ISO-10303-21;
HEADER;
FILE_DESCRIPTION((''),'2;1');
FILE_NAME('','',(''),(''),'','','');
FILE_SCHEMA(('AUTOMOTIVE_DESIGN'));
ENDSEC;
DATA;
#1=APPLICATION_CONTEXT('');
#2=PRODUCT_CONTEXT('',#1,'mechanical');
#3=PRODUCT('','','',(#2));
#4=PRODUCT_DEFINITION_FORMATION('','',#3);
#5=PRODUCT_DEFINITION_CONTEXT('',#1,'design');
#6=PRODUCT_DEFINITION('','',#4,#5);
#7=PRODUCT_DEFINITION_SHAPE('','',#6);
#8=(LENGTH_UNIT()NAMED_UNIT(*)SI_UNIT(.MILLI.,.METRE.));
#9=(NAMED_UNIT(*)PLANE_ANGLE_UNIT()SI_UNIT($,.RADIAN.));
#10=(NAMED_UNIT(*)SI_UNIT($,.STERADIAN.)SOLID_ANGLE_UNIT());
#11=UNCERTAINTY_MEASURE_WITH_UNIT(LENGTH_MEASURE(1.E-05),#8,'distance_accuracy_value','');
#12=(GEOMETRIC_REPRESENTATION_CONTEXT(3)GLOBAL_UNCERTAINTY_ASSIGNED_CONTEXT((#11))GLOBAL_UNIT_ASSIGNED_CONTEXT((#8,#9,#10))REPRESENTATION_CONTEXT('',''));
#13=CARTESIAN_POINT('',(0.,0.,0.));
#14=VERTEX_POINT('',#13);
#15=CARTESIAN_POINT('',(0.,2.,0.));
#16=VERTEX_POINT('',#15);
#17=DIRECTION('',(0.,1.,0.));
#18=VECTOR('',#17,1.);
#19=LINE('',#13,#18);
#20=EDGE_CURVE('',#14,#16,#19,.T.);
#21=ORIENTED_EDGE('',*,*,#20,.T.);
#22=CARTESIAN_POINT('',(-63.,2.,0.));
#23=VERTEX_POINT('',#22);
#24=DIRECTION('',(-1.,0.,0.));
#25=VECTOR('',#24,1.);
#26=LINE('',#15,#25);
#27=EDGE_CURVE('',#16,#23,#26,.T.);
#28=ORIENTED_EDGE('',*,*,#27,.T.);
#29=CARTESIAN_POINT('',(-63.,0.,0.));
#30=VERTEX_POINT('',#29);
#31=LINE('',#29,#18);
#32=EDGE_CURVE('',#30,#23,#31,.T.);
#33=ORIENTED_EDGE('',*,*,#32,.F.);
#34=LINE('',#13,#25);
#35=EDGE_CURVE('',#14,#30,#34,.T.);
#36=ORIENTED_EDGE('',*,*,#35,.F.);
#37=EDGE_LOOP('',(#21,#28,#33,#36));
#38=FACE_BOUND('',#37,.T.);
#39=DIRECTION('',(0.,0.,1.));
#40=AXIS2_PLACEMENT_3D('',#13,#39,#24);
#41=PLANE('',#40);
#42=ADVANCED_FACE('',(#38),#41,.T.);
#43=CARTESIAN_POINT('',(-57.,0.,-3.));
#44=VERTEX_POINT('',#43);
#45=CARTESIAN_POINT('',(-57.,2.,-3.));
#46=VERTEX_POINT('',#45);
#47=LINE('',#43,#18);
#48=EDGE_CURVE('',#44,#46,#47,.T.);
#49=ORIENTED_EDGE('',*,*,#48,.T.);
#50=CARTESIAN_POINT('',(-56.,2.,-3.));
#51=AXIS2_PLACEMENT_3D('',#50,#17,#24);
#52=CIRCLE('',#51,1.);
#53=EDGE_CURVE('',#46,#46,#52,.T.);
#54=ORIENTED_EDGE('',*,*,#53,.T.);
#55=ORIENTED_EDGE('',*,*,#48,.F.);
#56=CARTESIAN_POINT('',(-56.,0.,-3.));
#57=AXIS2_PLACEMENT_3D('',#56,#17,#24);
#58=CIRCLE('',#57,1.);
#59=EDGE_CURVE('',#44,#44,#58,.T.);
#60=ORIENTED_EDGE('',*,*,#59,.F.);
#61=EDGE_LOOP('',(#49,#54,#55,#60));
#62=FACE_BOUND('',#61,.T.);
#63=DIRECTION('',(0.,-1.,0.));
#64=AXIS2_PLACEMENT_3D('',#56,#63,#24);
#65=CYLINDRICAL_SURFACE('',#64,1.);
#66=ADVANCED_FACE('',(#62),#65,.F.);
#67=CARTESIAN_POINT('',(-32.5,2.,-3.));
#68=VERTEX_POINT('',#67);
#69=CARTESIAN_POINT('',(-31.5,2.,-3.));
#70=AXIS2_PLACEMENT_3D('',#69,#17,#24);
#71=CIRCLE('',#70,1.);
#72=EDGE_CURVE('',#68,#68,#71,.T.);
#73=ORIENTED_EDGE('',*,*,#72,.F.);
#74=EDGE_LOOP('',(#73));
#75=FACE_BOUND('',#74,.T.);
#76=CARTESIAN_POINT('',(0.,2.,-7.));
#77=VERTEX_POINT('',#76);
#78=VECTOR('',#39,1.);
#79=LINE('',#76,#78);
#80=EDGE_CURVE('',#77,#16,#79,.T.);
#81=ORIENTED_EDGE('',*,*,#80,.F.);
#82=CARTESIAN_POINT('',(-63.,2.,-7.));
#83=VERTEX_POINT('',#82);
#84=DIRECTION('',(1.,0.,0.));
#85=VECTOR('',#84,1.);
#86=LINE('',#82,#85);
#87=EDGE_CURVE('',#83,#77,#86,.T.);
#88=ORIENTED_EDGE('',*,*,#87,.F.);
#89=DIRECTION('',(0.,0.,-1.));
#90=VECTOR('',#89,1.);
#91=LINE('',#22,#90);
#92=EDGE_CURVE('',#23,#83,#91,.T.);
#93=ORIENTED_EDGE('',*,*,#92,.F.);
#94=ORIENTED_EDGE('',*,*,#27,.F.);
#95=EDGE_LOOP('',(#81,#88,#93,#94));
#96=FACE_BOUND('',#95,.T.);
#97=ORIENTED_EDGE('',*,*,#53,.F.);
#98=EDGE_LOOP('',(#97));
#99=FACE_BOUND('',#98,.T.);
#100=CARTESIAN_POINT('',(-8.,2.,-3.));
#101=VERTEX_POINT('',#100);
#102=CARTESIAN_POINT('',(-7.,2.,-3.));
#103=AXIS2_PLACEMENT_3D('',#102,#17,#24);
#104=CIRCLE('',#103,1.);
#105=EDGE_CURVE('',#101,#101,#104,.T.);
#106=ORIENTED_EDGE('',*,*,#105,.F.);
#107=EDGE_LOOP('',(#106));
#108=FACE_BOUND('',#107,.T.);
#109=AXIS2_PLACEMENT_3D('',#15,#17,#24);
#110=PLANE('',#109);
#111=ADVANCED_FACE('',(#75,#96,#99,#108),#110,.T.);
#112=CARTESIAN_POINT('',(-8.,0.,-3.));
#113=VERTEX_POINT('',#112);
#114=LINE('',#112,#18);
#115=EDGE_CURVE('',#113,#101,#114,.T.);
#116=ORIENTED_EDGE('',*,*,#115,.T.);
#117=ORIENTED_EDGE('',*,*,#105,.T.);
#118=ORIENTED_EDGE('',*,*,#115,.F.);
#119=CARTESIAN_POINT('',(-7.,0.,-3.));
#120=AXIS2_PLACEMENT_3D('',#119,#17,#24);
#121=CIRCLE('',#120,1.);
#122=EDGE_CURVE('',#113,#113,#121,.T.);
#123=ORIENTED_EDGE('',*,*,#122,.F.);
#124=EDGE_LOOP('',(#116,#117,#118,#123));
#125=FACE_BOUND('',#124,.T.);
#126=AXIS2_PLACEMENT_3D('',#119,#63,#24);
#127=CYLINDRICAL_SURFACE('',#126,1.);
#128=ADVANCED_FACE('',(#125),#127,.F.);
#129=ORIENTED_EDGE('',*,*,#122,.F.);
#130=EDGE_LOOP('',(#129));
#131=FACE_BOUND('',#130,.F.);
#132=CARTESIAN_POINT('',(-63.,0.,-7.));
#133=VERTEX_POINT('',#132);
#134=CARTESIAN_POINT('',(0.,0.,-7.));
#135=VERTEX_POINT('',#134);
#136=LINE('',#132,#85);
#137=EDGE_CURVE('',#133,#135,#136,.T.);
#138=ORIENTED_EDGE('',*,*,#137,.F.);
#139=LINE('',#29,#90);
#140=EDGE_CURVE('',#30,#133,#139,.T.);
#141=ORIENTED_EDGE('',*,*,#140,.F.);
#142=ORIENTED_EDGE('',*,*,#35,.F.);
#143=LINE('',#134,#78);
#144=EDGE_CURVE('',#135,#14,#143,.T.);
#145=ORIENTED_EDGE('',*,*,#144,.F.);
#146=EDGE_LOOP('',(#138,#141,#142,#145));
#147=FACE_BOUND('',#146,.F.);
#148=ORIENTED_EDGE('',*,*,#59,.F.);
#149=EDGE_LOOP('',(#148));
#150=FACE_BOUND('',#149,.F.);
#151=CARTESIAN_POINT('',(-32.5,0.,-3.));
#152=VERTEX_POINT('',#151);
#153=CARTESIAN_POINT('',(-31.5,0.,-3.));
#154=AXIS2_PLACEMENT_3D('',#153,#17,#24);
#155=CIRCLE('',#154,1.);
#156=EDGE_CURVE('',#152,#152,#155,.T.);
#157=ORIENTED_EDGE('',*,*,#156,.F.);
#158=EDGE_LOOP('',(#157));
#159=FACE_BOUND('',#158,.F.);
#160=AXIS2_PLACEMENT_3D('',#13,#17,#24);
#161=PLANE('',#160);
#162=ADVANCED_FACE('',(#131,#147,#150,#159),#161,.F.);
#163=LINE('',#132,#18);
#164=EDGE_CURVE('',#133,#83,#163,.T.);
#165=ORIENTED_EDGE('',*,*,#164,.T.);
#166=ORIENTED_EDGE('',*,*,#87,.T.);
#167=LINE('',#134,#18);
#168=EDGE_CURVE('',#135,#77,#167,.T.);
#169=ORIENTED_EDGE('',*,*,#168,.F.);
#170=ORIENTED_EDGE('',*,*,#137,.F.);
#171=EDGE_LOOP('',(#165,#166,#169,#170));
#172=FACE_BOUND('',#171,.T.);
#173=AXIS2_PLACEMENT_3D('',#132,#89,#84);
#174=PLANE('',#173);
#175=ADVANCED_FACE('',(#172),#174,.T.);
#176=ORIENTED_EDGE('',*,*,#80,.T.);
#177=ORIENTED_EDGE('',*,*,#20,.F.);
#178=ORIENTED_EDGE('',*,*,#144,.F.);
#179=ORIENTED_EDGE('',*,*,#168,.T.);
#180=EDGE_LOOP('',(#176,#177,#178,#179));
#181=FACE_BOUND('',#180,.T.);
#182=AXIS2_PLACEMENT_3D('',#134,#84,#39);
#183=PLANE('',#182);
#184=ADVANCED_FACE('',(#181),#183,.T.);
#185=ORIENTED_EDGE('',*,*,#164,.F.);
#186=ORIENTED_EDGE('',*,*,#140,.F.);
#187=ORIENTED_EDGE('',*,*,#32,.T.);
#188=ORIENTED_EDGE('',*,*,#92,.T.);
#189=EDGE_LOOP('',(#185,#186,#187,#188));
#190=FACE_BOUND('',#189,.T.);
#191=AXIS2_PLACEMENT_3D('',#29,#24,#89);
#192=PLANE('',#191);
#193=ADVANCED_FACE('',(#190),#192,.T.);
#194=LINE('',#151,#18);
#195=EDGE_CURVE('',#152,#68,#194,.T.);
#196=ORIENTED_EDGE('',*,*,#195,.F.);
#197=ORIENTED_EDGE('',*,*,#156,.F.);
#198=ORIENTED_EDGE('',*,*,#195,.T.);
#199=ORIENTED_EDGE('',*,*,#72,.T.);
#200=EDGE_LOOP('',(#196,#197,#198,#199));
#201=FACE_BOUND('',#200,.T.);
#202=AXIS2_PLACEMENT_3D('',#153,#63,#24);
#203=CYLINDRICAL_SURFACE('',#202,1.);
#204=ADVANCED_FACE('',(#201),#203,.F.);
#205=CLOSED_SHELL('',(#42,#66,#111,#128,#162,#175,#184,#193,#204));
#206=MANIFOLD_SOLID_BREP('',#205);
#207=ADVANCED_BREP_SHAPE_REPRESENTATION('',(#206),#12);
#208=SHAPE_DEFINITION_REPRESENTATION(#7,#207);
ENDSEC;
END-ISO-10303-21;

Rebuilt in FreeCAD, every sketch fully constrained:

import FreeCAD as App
import Part
import Sketcher
from FreeCAD import Vector


def add_polygon(sketch, points):
    """Adds a closed chain of lines whose ends are joined by coincident constraints."""
    first, n = sketch.GeometryCount, len(points)
    for a, b in zip(points, points[1:] + points[:1]):
        sketch.addGeometry(Part.LineSegment(App.Vector(*a, 0), App.Vector(*b, 0)), False)
    for i in range(n):
        sketch.addConstraint(Sketcher.Constraint("Coincident", first + i, 2, first + (i + 1) % n, 1))

doc = App.newDocument("Part")
body = doc.addObject("PartDesign::Body", "Body")

# Sketch on XZ plane
sketch1 = body.newObject("Sketcher::SketchObject", "Sketch")
sketch1.AttachmentSupport = (doc.getObject("XZ_Plane"), [""])
sketch1.MapMode = "FlatFace"
add_polygon(sketch1, [(-63, 0), (0, 0), (0, -7), (-63, -7)])  # lines 0-3
sketch1.addGeometry(Part.Circle(Vector(-7, -3, 0), Vector(0, 0, 1), 1), False)  # 4
sketch1.addGeometry(Part.Circle(Vector(-31.5, -3, 0), Vector(0, 0, 1), 1), False)  # 5
sketch1.addGeometry(Part.Circle(Vector(-56, -3, 0), Vector(0, 0, 1), 1), False)  # 6
sketch1.addConstraint([
    Sketcher.Constraint("Horizontal", 0),
    Sketcher.Constraint("Vertical", 1),
    Sketcher.Constraint("Horizontal", 2),
    Sketcher.Constraint("Vertical", 3),
    Sketcher.Constraint("Coincident", 0, 2, -1, 1),
    Sketcher.Constraint("Equal", 4, 5),
    Sketcher.Constraint("Equal", 5, 6),
    Sketcher.Constraint("Horizontal", 4, 3, 5, 3),
    Sketcher.Constraint("Horizontal", 5, 3, 6, 3),
    Sketcher.Constraint("Diameter", 4, 2.0),
    Sketcher.Constraint("DistanceX", 0, 1, 0, 2, 63.0),
    Sketcher.Constraint("DistanceY", 1, 2, 1, 1, 7.0),
    Sketcher.Constraint("DistanceX", 4, 3, -1, 1, 7.0),
    Sketcher.Constraint("DistanceY", 4, 3, -1, 1, 3.0),
    Sketcher.Constraint("DistanceX", 2, 2, 6, 3, 7.0),
    Sketcher.Constraint("DistanceX", 5, 3, -1, 1, 31.5),
])
pad1 = body.newObject("PartDesign::Pad", "Pad")
pad1.Profile = sketch1
pad1.Length = 2
pad1.Reversed = True

doc.recompute()
